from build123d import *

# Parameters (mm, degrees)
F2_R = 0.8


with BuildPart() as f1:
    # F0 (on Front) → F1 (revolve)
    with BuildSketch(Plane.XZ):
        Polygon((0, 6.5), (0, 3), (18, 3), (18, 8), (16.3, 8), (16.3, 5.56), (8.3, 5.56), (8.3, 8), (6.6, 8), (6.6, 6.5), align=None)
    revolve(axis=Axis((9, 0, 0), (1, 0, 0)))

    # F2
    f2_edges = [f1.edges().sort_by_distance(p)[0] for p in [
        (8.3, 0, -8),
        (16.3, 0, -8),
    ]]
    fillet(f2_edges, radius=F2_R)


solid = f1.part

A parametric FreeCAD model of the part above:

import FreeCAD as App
import Part
import Sketcher

V = App.Vector
Q = App.Units.Quantity


def edges_at(feature, points):
    """Names of the edges that pass closest to the given points."""
    edges = feature.Shape.Edges
    near = lambda p: min(range(len(edges)), key=lambda i: edges[i].distToShape(Part.Vertex(*p))[0])
    return sorted({f"Edge{near(p) + 1}" for p in points})


def add_polygon(sketch, points):
    """Adds a closed chain of lines whose ends are joined by coincident constraints."""
    first, n = sketch.GeometryCount, len(points)
    for a, b in zip(points, points[1:] + points[:1]):
        sketch.addGeometry(Part.LineSegment(App.Vector(*a, 0), App.Vector(*b, 0)), False)
    for i in range(n):
        sketch.addConstraint(Sketcher.Constraint("Coincident", first + i, 2, first + (i + 1) % n, 1))

doc = App.newDocument("Part")
body = doc.addObject("PartDesign::Body", "Body")

sketch1 = doc.addObject("Sketcher::SketchObject", "Sketch")
body.addObject(sketch1)
sketch1.AttachmentSupport = (doc.XZ_Plane, [""])
sketch1.MapMode = "FlatFace"
add_polygon(sketch1, [(0, 6.5), (0, 3), (18, 3), (18, 8), (16.3, 8), (16.3, 5.6), (8.3, 5.6), (8.3, 8), (6.6, 8), (6.6, 6.5)])
sketch1.addConstraint(Sketcher.Constraint("Vertical", 0))
sketch1.addConstraint(Sketcher.Constraint("Horizontal", 1))
sketch1.addConstraint(Sketcher.Constraint("Vertical", 2))
sketch1.addConstraint(Sketcher.Constraint("Horizontal", 3))
sketch1.addConstraint(Sketcher.Constraint("Vertical", 4))
sketch1.addConstraint(Sketcher.Constraint("Horizontal", 5))
sketch1.addConstraint(Sketcher.Constraint("Vertical", 6))
sketch1.addConstraint(Sketcher.Constraint("Horizontal", 7))
sketch1.addConstraint(Sketcher.Constraint("Vertical", 8))
sketch1.addConstraint(Sketcher.Constraint("Horizontal", 9))
sketch1.addConstraint(Sketcher.Constraint("PointOnObject", 0, 2, -2))
sketch1.addConstraint(Sketcher.Constraint("Horizontal", 3, 2, 6, 2))
sketch1.addConstraint(Sketcher.Constraint("Equal", 3, 7))
sketch1.addConstraint(Sketcher.Constraint("DistanceX", 1, 1, 1, 2, Q("18 mm")))
sketch1.addConstraint(Sketcher.Constraint("DistanceX", 5, 2, 5, 1, Q("8 mm")))
sketch1.addConstraint(Sketcher.Constraint("DistanceY", 2, 1, 2, 2, Q("5 mm")))
sketch1.addConstraint(Sketcher.Constraint("DistanceX", 3, 2, 3, 1, Q("1.7 mm")))
sketch1.addConstraint(Sketcher.Constraint("DistanceY", 0, 2, 0, 1, Q("3.5 mm")))
sketch1.addConstraint(Sketcher.Constraint("DistanceY", -1, 1, 0, 2, Q("3 mm")))
sketch1.addConstraint(Sketcher.Constraint("DistanceY", 4, 2, 4, 1, Q("2.44 mm")))
revolution = doc.addObject("PartDesign::Revolution", "Revolution")
body.addObject(revolution)
revolution.Profile = sketch1
revolution.ReferenceAxis = (sketch1, ["H_Axis"])
revolution.Angle = 360
doc.recompute()

fillet = doc.addObject("PartDesign::Fillet", "Fillet")
body.addObject(fillet)
fillet.Base = (revolution, edges_at(revolution, [(8.3, 0, -8), (16.3, 0, -8)]))
fillet.Radius = 0.8

doc.recompute()
